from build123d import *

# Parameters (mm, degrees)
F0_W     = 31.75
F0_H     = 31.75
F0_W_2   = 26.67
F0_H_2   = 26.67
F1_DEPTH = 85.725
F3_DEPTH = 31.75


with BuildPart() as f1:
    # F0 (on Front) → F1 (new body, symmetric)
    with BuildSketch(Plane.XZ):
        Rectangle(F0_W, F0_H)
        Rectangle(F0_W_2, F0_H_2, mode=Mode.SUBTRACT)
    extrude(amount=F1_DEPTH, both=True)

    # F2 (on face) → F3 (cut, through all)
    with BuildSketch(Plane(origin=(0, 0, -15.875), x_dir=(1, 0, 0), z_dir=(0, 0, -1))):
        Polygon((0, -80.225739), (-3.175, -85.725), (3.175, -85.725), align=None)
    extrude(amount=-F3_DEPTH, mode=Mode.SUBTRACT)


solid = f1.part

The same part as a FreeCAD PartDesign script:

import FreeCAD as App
import Part
import Sketcher

V = App.Vector
Q = App.Units.Quantity


def add_polygon(sketch, points):
    """Adds a closed chain of lines whose ends are joined by coincident constraints."""
    first, n = sketch.GeometryCount, len(points)
    for a, b in zip(points, points[1:] + points[:1]):
        sketch.addGeometry(Part.LineSegment(App.Vector(*a, 0), App.Vector(*b, 0)), False)
    for i in range(n):
        sketch.addConstraint(Sketcher.Constraint("Coincident", first + i, 2, first + (i + 1) % n, 1))

doc = App.newDocument("Part")
params = doc.addObject("Spreadsheet::Sheet", "Params")
for row, (alias, value) in enumerate([
    ("sketch1_width", "1.25 in"),
    ("sketch1_width2", "1.05 in"),
    ("pad1_length", "6.75 in"),
    ("sketch2_width", "0.25 in"),
], start=1):
    params.set(f"A{row}", alias)
    params.set(f"B{row}", "=" + value)
    params.setAlias(f"B{row}", alias)

body = doc.addObject("PartDesign::Body", "Body")

sketch1 = body.newObject("Sketcher::SketchObject", "Sketch")
sketch1.AttachmentSupport = (doc.getObject("XZ_Plane"), [""])
sketch1.MapMode = "FlatFace"
add_polygon(sketch1, [(-16, 16), (-16, -16), (16, -16), (16, 16)])
add_polygon(sketch1, [(13, -13), (-13, -13), (-13, 13), (13, 13)])
sketch1.addConstraint(Sketcher.Constraint("Vertical", 0))
sketch1.addConstraint(Sketcher.Constraint("Horizontal", 1))
sketch1.addConstraint(Sketcher.Constraint("Vertical", 2))
sketch1.addConstraint(Sketcher.Constraint("Horizontal", 3))
sketch1.addConstraint(Sketcher.Constraint("Horizontal", 4))
sketch1.addConstraint(Sketcher.Constraint("Vertical", 5))
sketch1.addConstraint(Sketcher.Constraint("Horizontal", 6))
sketch1.addConstraint(Sketcher.Constraint("Vertical", 7))
sketch1.addConstraint(Sketcher.Constraint("Symmetric", 0, 2, 2, 2, -1, 1))
sketch1.addConstraint(Sketcher.Constraint("Symmetric", 4, 2, 6, 2, -1, 1))
sketch1.addConstraint(Sketcher.Constraint("Equal", 3, 0))
sketch1.addConstraint(Sketcher.Constraint("Equal", 6, 5))
sketch1.addConstraint(Sketcher.Constraint("DistanceX", 1, 1, 1, 2, Q("1.25 in")))
sketch1.addConstraint(Sketcher.Constraint("DistanceX", 4, 2, 4, 1, Q("1.05 in")))
sketch1.setExpression("Constraints[20]", "Params.sketch1_width")
sketch1.setExpression("Constraints[21]", "Params.sketch1_width2")
pad1 = body.newObject("PartDesign::Pad", "Pad")
pad1.Profile = sketch1
pad1.setExpression("Length", "Params.pad1_length")
pad1.Midplane = True

sketch2 = body.newObject("Sketcher::SketchObject", "Sketch001")
sketch2.AttachmentSupport = (doc.getObject("XY_Plane"), [""])
sketch2.MapMode = "FlatFace"
sketch2.AttachmentOffset = App.Placement(V(0, 0, -0.625 * 25.4), App.Rotation())
add_polygon(sketch2, [(0, 80), (-3, 86), (3, 86)])
sketch2.addConstraint(Sketcher.Constraint("Horizontal", 1))
sketch2.addConstraint(Sketcher.Constraint("PointOnObject", 2, 2, -2))
sketch2.addConstraint(Sketcher.Constraint("Equal", 0, 2))
sketch2.addConstraint(Sketcher.Constraint("Angle", 0, Q("120.000001 deg")))
sketch2.addConstraint(Sketcher.Constraint("DistanceX", 1, 1, 1, 2, Q("0.25 in")))
sketch2.addConstraint(Sketcher.Constraint("DistanceY", -1, 1, 0, 2, Q("3.375 in")))
sketch2.setExpression("Constraints[7]", "Params.sketch2_width")
pocket1 = body.newObject("PartDesign::Pocket", "Pocket")
pocket1.Profile = sketch2
pocket1.Type = "ThroughAll"
pocket1.Reversed = True

doc.recompute()
